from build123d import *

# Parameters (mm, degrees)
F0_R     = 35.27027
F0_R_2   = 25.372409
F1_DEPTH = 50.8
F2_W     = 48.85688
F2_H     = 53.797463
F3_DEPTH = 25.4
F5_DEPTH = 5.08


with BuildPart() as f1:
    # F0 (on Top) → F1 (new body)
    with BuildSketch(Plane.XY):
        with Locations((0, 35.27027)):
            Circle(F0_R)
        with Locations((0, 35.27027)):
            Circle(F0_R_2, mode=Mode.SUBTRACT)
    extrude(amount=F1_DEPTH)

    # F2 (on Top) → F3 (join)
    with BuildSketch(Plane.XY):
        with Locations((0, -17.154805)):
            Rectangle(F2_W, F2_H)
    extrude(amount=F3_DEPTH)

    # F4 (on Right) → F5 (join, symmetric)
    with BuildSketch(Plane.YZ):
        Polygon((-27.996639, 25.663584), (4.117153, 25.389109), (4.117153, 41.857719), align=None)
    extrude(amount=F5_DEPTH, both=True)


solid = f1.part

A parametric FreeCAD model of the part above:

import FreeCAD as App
import Part
import Sketcher

V = App.Vector
Q = App.Units.Quantity


def add_polygon(sketch, points):
    """Adds a closed chain of lines whose ends are joined by coincident constraints."""
    first, n = sketch.GeometryCount, len(points)
    for a, b in zip(points, points[1:] + points[:1]):
        sketch.addGeometry(Part.LineSegment(App.Vector(*a, 0), App.Vector(*b, 0)), False)
    for i in range(n):
        sketch.addConstraint(Sketcher.Constraint("Coincident", first + i, 2, first + (i + 1) % n, 1))

doc = App.newDocument("Part")
body = doc.addObject("PartDesign::Body", "Body")

sketch1 = body.newObject("Sketcher::SketchObject", "Sketch")
sketch1.AttachmentSupport = (doc.getObject("XY_Plane"), [""])
sketch1.MapMode = "FlatFace"
sketch1.addGeometry([
    Part.Circle(V(0, 35, 0), V(0, 0, 1), 35),
    Part.Circle(V(0, 35, 0), V(0, 0, 1), 25),
], False)
sketch1.addConstraint([
    Sketcher.Constraint("Coincident", 1, 3, 0, 3),
    Sketcher.Constraint("PointOnObject", 0, 3, -2),
    Sketcher.Constraint("Diameter", 0, 70.54054),
    Sketcher.Constraint("Diameter", 1, 50.744818),
    Sketcher.Constraint("DistanceY", -1, 1, 0, 3, 35.27027),
])
pad1 = body.newObject("PartDesign::Pad", "Pad")
pad1.Profile = sketch1
pad1.Length = Q("2 in")

sketch2 = body.newObject("Sketcher::SketchObject", "Sketch001")
sketch2.AttachmentSupport = (doc.getObject("XY_Plane"), [""])
sketch2.MapMode = "FlatFace"
add_polygon(sketch2, [(-24, 10), (-24, -44), (24, -44), (24, 10)])
sketch2.addConstraint([
    Sketcher.Constraint("Vertical", 0),
    Sketcher.Constraint("Horizontal", 1),
    Sketcher.Constraint("Vertical", 2),
    Sketcher.Constraint("Horizontal", 3),
    Sketcher.Constraint("DistanceX", 1, 1, 1, 2, 48.85688),
    Sketcher.Constraint("DistanceY", 0, 2, 0, 1, 53.797463),
    Sketcher.Constraint("DistanceX", 0, 2, -1, 1, 24.42844),
    Sketcher.Constraint("DistanceY", 0, 2, -1, 1, 44.053536),
])
pad2 = body.newObject("PartDesign::Pad", "Pad001")
pad2.Profile = sketch2
pad2.Length = Q("1 in")

sketch3 = body.newObject("Sketcher::SketchObject", "Sketch002")
sketch3.AttachmentSupport = (doc.getObject("YZ_Plane"), [""])
sketch3.MapMode = "FlatFace"
add_polygon(sketch3, [(-28, 26), (4, 25), (4, 42)])
sketch3.addConstraint([
    Sketcher.Constraint("Vertical", 1),
    Sketcher.Constraint("DistanceY", 1, 1, 1, 2, 16.46861),
    Sketcher.Constraint("DistanceY", -1, 1, 0, 2, 25.389109),
    Sketcher.Constraint("DistanceX", 2, 2, -1, 1, 27.996639),
    Sketcher.Constraint("DistanceX", 2, 2, 0, 2, 32.113792),
    Sketcher.Constraint("Distance", 0, 32.114965),
])
pad3 = body.newObject("PartDesign::Pad", "Pad002")
pad3.Profile = sketch3
pad3.Length = Q("0.4 in")
pad3.Midplane = True

doc.recompute()
